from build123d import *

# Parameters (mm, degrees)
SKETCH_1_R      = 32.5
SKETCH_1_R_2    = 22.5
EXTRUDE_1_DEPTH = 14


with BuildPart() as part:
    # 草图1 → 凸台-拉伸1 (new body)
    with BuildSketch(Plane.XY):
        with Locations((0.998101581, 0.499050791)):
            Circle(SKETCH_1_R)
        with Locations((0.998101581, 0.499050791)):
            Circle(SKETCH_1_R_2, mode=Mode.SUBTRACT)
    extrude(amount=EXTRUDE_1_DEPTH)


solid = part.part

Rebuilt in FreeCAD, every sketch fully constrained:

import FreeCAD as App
import Part
import Sketcher
from FreeCAD import Vector

doc = App.newDocument("Part")
body = doc.addObject("PartDesign::Body", "Body")

sketch1 = doc.addObject("Sketcher::SketchObject", "Sketch")
body.addObject(sketch1)
sketch1.AttachmentSupport = (doc.XY_Plane, [""])
sketch1.MapMode = "FlatFace"
sketch1.addGeometry([
    Part.Circle(Vector(1, 0, 0), Vector(0, 0, 1), 32),
    Part.Circle(Vector(1, 0, 0), Vector(0, 0, 1), 22),
], False)
sketch1.addConstraint([
    Sketcher.Constraint("Coincident", 1, 3, 0, 3),
    Sketcher.Constraint("Diameter", 0, 65.0),
    Sketcher.Constraint("Diameter", 1, 45.0),
    Sketcher.Constraint("DistanceX", -1, 1, 0, 3, 0.998102),
    Sketcher.Constraint("DistanceY", -1, 1, 0, 3, 0.499051),
])
pad1 = doc.addObject("PartDesign::Pad", "Pad")
body.addObject(pad1)
pad1.Profile = sketch1
pad1.Length = 14

doc.recompute()
